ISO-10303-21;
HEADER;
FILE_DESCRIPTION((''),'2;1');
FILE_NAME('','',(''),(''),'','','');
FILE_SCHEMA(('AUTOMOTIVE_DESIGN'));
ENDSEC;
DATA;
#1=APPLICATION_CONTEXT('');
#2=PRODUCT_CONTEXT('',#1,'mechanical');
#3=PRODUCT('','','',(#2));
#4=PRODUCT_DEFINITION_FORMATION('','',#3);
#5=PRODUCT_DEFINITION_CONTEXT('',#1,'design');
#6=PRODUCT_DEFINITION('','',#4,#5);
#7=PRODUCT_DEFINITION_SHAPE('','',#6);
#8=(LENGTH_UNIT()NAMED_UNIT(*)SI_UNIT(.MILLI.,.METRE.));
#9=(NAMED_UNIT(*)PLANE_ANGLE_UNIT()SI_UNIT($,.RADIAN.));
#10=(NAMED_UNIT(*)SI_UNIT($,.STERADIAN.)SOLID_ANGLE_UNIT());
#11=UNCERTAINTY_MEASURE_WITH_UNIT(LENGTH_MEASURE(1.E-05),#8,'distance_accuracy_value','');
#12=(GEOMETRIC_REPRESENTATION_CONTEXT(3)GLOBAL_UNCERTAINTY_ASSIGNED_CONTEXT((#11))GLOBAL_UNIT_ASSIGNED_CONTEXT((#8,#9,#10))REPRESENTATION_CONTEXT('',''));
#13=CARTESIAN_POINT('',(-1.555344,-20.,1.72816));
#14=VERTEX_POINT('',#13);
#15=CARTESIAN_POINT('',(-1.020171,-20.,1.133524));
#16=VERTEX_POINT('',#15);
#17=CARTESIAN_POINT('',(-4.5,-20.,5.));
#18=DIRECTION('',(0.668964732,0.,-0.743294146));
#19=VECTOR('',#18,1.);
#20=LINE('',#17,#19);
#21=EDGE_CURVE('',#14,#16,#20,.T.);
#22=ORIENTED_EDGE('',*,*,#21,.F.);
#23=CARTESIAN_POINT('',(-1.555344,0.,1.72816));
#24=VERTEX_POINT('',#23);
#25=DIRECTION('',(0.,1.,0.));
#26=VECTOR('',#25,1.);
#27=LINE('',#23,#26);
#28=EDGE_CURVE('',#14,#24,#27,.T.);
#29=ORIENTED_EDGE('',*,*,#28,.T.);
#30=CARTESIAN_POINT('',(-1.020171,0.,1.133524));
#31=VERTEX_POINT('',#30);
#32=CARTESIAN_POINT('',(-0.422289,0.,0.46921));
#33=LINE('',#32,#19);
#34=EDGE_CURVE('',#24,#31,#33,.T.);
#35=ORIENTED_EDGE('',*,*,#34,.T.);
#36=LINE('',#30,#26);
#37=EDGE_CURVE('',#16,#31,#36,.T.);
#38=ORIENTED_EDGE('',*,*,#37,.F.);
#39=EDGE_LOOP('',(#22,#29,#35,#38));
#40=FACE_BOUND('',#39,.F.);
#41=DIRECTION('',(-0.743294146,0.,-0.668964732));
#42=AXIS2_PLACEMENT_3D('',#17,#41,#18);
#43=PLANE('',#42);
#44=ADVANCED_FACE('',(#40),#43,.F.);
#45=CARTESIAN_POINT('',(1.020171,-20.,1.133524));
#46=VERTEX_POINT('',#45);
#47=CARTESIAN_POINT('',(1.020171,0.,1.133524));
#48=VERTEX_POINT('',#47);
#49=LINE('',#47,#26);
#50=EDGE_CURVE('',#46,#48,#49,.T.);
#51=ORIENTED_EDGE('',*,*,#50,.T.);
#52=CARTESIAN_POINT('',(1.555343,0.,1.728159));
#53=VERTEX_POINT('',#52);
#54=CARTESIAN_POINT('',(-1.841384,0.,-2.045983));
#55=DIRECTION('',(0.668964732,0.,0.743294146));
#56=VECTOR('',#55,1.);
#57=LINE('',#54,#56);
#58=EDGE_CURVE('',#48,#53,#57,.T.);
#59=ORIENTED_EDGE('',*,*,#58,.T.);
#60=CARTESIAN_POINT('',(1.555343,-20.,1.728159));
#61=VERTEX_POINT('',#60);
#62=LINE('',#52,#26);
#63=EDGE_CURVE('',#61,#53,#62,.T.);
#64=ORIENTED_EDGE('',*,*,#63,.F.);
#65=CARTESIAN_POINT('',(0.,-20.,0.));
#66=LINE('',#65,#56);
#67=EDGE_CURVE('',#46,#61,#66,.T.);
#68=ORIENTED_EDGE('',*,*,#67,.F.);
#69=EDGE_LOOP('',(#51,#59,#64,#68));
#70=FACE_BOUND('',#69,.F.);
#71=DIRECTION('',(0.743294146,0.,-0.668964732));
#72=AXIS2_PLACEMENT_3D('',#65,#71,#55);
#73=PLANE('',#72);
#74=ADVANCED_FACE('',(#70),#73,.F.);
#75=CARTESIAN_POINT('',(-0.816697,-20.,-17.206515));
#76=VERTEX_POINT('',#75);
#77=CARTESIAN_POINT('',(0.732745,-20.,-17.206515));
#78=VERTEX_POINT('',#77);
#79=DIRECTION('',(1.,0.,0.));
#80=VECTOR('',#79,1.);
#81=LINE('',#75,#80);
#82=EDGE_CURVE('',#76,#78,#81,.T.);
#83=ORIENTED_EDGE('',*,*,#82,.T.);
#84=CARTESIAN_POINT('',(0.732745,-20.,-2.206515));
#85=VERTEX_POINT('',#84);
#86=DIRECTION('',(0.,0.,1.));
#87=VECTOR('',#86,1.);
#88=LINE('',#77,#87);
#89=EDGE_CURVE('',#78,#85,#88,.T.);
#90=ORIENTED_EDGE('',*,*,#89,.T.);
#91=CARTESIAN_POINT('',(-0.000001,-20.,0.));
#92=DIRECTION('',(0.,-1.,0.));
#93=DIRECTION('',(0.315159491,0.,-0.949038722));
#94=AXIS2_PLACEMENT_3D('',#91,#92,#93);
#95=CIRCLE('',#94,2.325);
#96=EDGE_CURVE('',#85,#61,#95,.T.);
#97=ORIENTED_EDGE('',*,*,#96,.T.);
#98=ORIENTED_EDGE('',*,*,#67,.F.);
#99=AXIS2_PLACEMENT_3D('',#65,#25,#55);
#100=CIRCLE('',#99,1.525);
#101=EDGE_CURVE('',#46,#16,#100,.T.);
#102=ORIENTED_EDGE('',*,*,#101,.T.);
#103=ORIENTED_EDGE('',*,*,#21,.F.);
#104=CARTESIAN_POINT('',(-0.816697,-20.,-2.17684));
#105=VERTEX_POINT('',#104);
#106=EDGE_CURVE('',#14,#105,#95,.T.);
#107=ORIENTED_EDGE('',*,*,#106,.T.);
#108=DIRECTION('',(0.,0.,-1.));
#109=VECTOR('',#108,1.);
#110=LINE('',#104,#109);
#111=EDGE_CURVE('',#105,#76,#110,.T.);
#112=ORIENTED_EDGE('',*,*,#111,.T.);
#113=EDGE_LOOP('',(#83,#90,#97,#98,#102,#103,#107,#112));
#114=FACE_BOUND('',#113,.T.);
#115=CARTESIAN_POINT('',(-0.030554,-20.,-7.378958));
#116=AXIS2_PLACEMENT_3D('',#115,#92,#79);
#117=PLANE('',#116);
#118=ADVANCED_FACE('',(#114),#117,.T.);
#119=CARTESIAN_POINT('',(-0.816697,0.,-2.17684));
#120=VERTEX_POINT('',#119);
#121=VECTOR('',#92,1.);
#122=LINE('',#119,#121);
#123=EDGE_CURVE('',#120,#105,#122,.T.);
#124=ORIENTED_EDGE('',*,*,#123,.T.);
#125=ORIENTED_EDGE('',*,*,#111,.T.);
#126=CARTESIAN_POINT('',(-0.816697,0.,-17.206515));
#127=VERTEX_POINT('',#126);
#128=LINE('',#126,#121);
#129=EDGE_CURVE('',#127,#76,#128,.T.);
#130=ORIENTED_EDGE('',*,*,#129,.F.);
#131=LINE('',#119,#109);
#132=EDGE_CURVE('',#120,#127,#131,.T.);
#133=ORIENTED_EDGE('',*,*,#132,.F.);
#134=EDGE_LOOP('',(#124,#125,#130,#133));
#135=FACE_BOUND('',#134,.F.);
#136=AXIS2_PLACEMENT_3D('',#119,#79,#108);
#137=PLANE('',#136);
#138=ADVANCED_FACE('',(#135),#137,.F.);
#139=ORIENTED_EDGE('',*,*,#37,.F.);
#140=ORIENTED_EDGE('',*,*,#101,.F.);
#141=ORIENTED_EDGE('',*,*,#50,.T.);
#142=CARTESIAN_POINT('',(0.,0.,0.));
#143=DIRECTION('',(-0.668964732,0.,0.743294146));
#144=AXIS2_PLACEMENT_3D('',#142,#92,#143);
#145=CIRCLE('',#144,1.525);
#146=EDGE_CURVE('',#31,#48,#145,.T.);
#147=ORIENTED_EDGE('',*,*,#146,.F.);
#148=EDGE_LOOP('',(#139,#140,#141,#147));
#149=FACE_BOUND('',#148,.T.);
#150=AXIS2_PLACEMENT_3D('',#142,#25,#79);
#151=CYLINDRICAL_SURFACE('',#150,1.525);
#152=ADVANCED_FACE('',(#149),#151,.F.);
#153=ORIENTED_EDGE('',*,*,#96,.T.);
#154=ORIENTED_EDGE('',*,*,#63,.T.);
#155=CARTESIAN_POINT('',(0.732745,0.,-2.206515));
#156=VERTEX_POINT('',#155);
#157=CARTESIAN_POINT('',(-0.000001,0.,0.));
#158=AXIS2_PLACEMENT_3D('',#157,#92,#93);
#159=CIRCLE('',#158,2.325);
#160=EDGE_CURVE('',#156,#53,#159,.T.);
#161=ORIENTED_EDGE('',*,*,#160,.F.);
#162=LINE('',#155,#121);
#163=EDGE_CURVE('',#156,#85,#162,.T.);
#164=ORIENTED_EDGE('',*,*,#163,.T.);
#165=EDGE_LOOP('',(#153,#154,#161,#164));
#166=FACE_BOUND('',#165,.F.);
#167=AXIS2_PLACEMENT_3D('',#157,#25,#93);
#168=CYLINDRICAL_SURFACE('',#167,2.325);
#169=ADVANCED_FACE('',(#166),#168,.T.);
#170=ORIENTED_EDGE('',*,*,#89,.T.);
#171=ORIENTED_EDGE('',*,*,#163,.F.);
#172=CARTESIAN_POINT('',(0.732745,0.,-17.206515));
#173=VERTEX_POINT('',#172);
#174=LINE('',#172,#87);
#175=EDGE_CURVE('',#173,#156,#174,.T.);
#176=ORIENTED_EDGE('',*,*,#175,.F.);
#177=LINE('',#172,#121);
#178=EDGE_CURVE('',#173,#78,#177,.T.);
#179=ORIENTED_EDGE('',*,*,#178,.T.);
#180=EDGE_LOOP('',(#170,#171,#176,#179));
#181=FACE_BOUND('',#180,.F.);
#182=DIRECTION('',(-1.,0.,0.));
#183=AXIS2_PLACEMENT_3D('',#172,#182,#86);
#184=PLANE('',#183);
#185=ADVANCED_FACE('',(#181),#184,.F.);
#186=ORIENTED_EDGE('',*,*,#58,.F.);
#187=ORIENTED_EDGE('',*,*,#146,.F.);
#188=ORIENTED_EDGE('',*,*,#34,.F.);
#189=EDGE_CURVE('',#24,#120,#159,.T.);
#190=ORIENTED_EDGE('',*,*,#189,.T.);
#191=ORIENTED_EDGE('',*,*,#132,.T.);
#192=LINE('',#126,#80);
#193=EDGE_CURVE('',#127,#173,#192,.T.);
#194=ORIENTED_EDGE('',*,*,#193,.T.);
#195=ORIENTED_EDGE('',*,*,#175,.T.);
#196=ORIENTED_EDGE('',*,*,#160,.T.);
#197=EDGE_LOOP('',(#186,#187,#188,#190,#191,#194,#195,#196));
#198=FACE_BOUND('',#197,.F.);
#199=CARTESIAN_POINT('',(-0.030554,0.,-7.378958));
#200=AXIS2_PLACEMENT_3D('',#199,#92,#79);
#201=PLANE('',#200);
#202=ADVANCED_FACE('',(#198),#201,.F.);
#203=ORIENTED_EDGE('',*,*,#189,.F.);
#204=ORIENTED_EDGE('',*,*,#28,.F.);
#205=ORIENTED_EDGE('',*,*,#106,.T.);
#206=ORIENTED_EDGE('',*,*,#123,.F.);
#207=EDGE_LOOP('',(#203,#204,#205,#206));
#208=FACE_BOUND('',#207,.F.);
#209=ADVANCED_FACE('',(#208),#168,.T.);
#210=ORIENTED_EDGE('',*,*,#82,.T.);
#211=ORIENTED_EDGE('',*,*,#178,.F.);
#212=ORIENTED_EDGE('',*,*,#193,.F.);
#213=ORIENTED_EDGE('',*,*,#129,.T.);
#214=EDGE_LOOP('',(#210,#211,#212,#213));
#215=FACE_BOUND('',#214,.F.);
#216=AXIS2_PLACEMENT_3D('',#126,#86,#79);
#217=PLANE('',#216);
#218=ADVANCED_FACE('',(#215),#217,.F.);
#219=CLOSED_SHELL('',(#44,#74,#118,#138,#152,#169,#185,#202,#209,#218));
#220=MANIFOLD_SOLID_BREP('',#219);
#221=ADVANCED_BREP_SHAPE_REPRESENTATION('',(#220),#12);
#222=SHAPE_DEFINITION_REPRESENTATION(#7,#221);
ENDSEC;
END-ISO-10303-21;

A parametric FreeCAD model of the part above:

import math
import FreeCAD as App
import Part
import Sketcher

V = App.Vector
Q = App.Units.Quantity

doc = App.newDocument("Part")
body = doc.addObject("PartDesign::Body", "Body")

sketch1 = body.newObject("Sketcher::SketchObject", "Sketch")
sketch1.AttachmentSupport = (doc.getObject("XZ_Plane"), [""])
sketch1.MapMode = "FlatFace"
sketch1.addGeometry([
    Part.LineSegment(V(0.7, -17.2, 0), V(0.7, -2.2, 0)),
    Part.ArcOfCircle(Part.Circle(V(0, 0, 0), V(0, 0, 1), 2.3), math.radians(-72), math.radians(249)),
    Part.LineSegment(V(-0.8, -2.2, 0), V(-0.8, -17.2, 0)),
    Part.LineSegment(V(-0.8, -17.2, 0), V(0.7, -17.2, 0)),
    Part.Circle(V(0, 0, 0), V(0, 0, 1), 1.5),
], False)
sketch1.addConstraint([
    Sketcher.Constraint("Coincident", 0, 2, 1, 1),
    Sketcher.Constraint("Coincident", 1, 2, 2, 1),
    Sketcher.Constraint("Coincident", 2, 2, 3, 1),
    Sketcher.Constraint("Coincident", 3, 2, 0, 1),
    Sketcher.Constraint("Vertical", 0),
    Sketcher.Constraint("Vertical", 2),
    Sketcher.Constraint("Horizontal", 3),
    Sketcher.Constraint("Coincident", 1, 3, -1, 1),
    Sketcher.Constraint("Coincident", 4, 3, -1, 1),
    Sketcher.Constraint("Diameter", 4, Q("3.05 mm")),
    Sketcher.Constraint("DistanceY", 0, 1, 0, 2, Q("15 mm")),
    Sketcher.Constraint("Radius", 1, Q("2.325 mm")),
    Sketcher.Constraint("DistanceX", 3, 1, 3, 2, Q("1.549442 mm")),
    Sketcher.Constraint("DistanceY", 2, 2, 2, 1, Q("15.029675 mm")),
])
pad1 = body.newObject("PartDesign::Pad", "Pad")
pad1.Profile = sketch1
pad1.Length = 20

sketch2 = body.newObject("Sketcher::SketchObject", "Sketch001")
sketch2.AttachmentSupport = (doc.getObject("XZ_Plane"), [""])
sketch2.MapMode = "FlatFace"
sketch2.AttachmentOffset = App.Placement(V(0, 0, 20), App.Rotation())
sketch2.addGeometry([
    Part.LineSegment(V(0, 5.5, 0), V(-4.5, 5, 0)),
    Part.LineSegment(V(-4.5, 5, 0), V(0, 0, 0)),
    Part.LineSegment(V(0, 0, 0), V(4.5, 5, 0)),
    Part.LineSegment(V(4.5, 5, 0), V(0, 5.5, 0)),
], False)
sketch2.addConstraint([
    Sketcher.Constraint("Coincident", 0, 2, 1, 1),
    Sketcher.Constraint("Coincident", 1, 2, 2, 1),
    Sketcher.Constraint("Coincident", 2, 2, 3, 1),
    Sketcher.Constraint("Coincident", 3, 2, 0, 1),
    Sketcher.Constraint("Coincident", 1, 2, -1, 1),
    Sketcher.Constraint("Symmetric", 0, 2, 2, 2, -2),
    Sketcher.Constraint("PointOnObject", 3, 2, -2),
    Sketcher.Constraint("DistanceY", -1, 1, 0, 2, Q("5 mm")),
    Sketcher.Constraint("DistanceX", 0, 2, 2, 2, Q("9 mm")),
    Sketcher.Constraint("Distance", 0, Q("4.522774 mm")),
])
pocket1 = body.newObject("PartDesign::Pocket", "Pocket")
pocket1.Profile = sketch2
pocket1.Length = 25

doc.recompute()
